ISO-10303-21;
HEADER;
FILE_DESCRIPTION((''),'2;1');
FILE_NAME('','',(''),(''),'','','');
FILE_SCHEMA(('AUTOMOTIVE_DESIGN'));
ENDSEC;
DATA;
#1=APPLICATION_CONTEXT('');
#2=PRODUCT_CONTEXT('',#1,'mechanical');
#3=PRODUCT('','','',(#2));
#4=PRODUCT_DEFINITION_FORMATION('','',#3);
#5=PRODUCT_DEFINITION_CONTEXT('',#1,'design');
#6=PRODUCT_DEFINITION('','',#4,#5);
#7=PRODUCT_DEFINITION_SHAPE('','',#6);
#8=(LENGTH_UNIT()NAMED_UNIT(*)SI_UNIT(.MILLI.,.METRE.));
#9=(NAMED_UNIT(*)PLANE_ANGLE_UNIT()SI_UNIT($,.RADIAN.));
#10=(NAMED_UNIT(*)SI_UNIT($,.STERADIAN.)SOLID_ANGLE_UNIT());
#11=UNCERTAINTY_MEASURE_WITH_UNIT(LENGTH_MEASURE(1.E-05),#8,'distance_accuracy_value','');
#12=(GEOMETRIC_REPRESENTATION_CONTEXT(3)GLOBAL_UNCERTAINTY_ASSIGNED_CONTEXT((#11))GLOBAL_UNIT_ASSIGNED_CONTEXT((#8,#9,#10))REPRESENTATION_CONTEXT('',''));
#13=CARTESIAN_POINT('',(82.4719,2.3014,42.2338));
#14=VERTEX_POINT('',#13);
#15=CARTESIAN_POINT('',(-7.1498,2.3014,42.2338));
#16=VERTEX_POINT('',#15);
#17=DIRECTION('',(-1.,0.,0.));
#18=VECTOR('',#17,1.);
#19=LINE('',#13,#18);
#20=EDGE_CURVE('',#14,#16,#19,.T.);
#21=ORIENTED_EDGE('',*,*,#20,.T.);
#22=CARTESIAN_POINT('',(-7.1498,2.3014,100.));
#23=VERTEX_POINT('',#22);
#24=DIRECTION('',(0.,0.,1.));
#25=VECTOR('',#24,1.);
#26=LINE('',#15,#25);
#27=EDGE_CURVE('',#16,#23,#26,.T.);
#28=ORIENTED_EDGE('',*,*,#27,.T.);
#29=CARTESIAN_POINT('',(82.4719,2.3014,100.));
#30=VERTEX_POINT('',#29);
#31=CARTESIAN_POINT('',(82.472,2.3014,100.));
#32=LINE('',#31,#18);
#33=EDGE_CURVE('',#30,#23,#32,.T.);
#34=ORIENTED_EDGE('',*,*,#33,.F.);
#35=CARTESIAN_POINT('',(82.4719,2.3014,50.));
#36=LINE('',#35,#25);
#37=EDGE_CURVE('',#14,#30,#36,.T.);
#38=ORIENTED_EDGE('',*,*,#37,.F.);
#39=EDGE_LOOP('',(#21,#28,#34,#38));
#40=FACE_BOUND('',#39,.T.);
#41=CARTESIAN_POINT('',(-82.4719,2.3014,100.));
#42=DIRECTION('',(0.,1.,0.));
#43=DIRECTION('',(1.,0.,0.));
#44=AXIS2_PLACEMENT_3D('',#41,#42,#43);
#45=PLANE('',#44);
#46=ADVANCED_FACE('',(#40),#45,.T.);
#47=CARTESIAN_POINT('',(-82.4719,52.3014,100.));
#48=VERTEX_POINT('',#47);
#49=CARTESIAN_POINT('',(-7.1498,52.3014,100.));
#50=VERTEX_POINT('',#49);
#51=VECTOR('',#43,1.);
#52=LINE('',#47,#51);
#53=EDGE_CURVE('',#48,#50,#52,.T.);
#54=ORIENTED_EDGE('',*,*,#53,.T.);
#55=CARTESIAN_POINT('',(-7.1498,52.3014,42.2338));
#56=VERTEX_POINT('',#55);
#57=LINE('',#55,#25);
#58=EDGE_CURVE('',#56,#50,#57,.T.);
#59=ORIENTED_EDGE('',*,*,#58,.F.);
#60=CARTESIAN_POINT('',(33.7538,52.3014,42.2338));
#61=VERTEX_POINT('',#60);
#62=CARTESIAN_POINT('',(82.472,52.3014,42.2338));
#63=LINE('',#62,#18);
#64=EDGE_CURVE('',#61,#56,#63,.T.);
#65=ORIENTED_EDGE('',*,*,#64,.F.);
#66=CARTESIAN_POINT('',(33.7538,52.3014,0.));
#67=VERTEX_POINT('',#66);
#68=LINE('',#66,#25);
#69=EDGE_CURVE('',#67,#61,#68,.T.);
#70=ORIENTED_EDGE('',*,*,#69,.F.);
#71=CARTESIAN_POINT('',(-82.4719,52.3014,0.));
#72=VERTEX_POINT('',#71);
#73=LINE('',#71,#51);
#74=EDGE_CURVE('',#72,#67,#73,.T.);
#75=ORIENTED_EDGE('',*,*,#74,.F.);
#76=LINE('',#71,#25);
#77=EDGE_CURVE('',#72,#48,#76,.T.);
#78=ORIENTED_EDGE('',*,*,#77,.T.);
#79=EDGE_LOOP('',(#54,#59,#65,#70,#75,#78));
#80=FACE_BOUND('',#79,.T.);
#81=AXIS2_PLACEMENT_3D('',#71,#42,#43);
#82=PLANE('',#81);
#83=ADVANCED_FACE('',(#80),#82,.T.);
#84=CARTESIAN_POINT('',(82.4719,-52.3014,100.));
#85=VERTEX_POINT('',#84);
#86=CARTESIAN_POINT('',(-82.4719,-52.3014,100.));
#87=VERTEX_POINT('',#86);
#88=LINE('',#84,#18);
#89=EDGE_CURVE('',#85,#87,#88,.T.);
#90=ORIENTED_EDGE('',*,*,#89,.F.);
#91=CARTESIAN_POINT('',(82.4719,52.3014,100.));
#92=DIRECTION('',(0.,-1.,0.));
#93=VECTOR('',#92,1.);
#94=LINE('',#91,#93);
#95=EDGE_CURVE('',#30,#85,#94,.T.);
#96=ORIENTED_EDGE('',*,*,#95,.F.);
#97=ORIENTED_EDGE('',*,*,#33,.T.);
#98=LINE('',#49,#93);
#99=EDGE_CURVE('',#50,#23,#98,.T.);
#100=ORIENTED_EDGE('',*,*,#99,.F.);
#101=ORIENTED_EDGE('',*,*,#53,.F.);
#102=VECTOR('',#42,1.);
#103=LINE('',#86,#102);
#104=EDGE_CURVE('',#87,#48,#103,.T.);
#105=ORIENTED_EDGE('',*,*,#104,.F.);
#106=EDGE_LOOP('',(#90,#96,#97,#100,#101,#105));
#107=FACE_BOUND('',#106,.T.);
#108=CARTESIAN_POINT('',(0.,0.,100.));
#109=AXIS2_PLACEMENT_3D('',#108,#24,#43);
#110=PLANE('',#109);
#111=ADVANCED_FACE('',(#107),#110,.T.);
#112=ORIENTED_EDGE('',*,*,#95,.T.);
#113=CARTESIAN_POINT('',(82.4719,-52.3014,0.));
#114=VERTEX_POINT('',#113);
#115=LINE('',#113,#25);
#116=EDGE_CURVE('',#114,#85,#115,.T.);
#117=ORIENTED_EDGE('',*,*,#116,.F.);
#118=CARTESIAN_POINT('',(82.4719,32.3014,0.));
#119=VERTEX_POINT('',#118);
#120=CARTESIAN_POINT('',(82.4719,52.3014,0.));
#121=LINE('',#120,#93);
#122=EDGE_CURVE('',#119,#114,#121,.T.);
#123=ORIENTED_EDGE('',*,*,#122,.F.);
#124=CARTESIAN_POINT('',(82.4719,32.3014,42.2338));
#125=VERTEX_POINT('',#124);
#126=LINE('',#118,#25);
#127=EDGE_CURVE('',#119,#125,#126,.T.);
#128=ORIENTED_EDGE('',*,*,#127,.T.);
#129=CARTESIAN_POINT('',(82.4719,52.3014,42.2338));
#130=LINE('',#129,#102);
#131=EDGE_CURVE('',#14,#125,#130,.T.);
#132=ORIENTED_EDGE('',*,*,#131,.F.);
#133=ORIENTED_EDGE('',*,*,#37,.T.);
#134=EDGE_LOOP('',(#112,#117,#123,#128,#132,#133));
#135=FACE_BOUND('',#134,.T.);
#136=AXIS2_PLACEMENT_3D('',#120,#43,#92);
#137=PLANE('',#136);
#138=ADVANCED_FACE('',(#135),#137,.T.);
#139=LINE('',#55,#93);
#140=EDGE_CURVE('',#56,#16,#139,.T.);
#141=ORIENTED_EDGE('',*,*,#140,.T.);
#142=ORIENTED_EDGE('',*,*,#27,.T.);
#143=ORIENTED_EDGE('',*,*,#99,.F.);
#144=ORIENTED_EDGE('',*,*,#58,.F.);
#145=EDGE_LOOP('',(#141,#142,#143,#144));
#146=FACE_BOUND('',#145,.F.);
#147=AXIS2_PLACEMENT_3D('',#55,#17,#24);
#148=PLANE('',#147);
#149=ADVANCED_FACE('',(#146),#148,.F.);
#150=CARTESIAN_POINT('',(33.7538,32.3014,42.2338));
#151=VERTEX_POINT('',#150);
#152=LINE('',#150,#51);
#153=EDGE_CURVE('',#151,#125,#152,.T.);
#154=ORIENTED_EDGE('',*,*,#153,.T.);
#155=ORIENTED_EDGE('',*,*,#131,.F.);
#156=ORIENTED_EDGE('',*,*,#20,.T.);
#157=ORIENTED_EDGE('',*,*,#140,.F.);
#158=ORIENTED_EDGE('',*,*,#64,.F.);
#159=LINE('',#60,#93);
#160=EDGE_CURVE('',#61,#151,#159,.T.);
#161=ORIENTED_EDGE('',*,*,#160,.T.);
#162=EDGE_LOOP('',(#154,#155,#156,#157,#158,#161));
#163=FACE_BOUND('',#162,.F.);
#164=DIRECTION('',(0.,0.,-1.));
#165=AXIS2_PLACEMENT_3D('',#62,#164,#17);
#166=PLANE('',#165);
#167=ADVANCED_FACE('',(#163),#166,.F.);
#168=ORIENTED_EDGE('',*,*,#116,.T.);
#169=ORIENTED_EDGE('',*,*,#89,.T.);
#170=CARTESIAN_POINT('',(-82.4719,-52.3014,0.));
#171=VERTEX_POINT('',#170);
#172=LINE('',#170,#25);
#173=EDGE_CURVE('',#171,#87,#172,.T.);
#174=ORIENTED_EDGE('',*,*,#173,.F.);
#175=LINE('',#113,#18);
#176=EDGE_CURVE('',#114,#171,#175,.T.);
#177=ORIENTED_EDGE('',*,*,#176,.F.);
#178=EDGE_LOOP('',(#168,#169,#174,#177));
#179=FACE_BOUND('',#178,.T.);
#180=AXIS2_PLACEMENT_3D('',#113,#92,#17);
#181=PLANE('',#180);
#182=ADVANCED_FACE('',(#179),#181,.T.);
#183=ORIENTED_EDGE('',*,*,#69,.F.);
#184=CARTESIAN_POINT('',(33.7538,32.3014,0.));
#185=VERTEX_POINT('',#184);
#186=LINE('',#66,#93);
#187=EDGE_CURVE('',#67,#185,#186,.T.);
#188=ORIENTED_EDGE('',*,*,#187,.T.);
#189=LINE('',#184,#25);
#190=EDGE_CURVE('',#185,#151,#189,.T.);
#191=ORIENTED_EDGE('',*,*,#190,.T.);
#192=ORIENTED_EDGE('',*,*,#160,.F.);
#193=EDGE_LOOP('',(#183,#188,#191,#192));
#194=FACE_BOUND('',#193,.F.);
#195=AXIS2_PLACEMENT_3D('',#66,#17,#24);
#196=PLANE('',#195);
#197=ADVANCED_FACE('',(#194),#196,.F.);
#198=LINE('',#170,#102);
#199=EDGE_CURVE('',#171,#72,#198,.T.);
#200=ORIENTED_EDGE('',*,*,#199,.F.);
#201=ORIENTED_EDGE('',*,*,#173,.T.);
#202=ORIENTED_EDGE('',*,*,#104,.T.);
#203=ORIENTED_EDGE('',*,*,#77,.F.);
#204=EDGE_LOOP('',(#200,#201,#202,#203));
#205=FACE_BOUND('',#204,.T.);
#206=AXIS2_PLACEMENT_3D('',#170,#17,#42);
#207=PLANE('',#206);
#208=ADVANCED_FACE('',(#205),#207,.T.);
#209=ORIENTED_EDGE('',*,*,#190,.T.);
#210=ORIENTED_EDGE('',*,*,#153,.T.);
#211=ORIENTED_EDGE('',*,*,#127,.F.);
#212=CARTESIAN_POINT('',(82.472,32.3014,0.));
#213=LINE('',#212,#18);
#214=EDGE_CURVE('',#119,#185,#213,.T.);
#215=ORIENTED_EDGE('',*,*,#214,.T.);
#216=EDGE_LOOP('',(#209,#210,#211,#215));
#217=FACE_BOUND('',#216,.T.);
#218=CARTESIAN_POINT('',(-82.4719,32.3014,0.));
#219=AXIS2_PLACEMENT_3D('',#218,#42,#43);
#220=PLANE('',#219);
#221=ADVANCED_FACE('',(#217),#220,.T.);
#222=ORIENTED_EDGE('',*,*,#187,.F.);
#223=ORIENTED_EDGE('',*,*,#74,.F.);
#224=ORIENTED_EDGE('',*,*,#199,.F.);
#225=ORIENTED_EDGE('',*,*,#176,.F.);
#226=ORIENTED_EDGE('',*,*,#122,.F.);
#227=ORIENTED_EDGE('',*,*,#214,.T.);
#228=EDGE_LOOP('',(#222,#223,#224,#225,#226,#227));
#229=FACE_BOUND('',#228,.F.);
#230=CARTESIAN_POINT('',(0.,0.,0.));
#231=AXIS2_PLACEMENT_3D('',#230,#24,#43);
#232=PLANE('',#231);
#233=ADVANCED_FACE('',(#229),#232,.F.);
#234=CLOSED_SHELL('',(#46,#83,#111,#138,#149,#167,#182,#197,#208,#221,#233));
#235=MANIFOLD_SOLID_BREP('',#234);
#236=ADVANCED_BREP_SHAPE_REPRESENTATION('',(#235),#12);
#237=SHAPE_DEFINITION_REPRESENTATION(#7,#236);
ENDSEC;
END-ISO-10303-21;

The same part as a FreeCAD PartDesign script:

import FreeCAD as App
import Part
import Sketcher
from FreeCAD import Vector
Q = App.Units.Quantity


def add_polygon(sketch, points):
    """Adds a closed chain of lines whose ends are joined by coincident constraints."""
    first, n = sketch.GeometryCount, len(points)
    for a, b in zip(points, points[1:] + points[:1]):
        sketch.addGeometry(Part.LineSegment(App.Vector(*a, 0), App.Vector(*b, 0)), False)
    for i in range(n):
        sketch.addConstraint(Sketcher.Constraint("Coincident", first + i, 2, first + (i + 1) % n, 1))

doc = App.newDocument("Part")
body = doc.addObject("PartDesign::Body", "Body")

# Sketch on XY plane
sketch1 = body.newObject("Sketcher::SketchObject", "Sketch")
sketch1.AttachmentSupport = (doc.getObject("XY_Plane"), [""])
sketch1.MapMode = "FlatFace"
add_polygon(sketch1, [(-82, -52), (82, -52), (82, 52), (-82, 52)])  # lines 0-3
sketch1.addConstraint([
    Sketcher.Constraint("Horizontal", 0),
    Sketcher.Constraint("Vertical", 1),
    Sketcher.Constraint("Horizontal", 2),
    Sketcher.Constraint("Vertical", 3),
    Sketcher.Constraint("Symmetric", 0, 2, 2, 2, -1, 1),
    Sketcher.Constraint("DistanceX", 0, 1, 0, 2, 164.9438),
    Sketcher.Constraint("DistanceY", 1, 1, 1, 2, 104.6028),
])
pad1 = body.newObject("PartDesign::Pad", "Pad")
pad1.Profile = sketch1
pad1.Length = Q("3.9370079 in")

# Sketch on XZ plane
sketch2 = body.newObject("Sketcher::SketchObject", "Sketch001")
sketch2.AttachmentSupport = (doc.getObject("XZ_Plane"), [""])
sketch2.MapMode = "FlatFace"
sketch2.AttachmentOffset = App.Placement(Vector(0, 0, -2.0591102 * 25.4), App.Rotation())
add_polygon(sketch2, [(82, 42), (82, 0), (34, 0), (34, 42)])  # lines 0-3
sketch2.addConstraint([
    Sketcher.Constraint("Vertical", 0),
    Sketcher.Constraint("Horizontal", 1),
    Sketcher.Constraint("Vertical", 2),
    Sketcher.Constraint("Horizontal", 3),
    Sketcher.Constraint("PointOnObject", 0, 2, -1),
    Sketcher.Constraint("DistanceX", 1, 2, 1, 1, 48.7182),
    Sketcher.Constraint("DistanceY", 0, 2, 0, 1, 42.2338),
    Sketcher.Constraint("DistanceX", -1, 1, 1, 2, Q("1.3289 in")),
])
pocket1 = body.newObject("PartDesign::Pocket", "Pocket")
pocket1.Profile = sketch2
pocket1.Length = Q("0.7874016 in")
pocket1.Reversed = True

# Sketch on XZ plane
sketch3 = body.newObject("Sketcher::SketchObject", "Sketch002")
sketch3.AttachmentSupport = (doc.getObject("XZ_Plane"), [""])
sketch3.MapMode = "FlatFace"
sketch3.AttachmentOffset = App.Placement(Vector(0, 0, -2.0591102 * 25.4), App.Rotation())
add_polygon(sketch3, [(-7, 100), (82, 100), (82, 42), (-7, 42)])  # lines 0-3
sketch3.addConstraint([
    Sketcher.Constraint("Horizontal", 0),
    Sketcher.Constraint("Vertical", 1),
    Sketcher.Constraint("Horizontal", 2),
    Sketcher.Constraint("Vertical", 3),
    Sketcher.Constraint("DistanceY", -1, 1, 0, 2, Q("3.937 in")),
    Sketcher.Constraint("DistanceX", 0, 1, 0, 2, 89.6218),
    Sketcher.Constraint("DistanceY", 1, 2, 1, 1, 57.7662),
    Sketcher.Constraint("DistanceX", 2, 2, -1, 1, Q("0.2815 in")),
])
pocket2 = body.newObject("PartDesign::Pocket", "Pocket001")
pocket2.Profile = sketch3
pocket2.Length = Q("1.9685039 in")
pocket2.Reversed = True

doc.recompute()
